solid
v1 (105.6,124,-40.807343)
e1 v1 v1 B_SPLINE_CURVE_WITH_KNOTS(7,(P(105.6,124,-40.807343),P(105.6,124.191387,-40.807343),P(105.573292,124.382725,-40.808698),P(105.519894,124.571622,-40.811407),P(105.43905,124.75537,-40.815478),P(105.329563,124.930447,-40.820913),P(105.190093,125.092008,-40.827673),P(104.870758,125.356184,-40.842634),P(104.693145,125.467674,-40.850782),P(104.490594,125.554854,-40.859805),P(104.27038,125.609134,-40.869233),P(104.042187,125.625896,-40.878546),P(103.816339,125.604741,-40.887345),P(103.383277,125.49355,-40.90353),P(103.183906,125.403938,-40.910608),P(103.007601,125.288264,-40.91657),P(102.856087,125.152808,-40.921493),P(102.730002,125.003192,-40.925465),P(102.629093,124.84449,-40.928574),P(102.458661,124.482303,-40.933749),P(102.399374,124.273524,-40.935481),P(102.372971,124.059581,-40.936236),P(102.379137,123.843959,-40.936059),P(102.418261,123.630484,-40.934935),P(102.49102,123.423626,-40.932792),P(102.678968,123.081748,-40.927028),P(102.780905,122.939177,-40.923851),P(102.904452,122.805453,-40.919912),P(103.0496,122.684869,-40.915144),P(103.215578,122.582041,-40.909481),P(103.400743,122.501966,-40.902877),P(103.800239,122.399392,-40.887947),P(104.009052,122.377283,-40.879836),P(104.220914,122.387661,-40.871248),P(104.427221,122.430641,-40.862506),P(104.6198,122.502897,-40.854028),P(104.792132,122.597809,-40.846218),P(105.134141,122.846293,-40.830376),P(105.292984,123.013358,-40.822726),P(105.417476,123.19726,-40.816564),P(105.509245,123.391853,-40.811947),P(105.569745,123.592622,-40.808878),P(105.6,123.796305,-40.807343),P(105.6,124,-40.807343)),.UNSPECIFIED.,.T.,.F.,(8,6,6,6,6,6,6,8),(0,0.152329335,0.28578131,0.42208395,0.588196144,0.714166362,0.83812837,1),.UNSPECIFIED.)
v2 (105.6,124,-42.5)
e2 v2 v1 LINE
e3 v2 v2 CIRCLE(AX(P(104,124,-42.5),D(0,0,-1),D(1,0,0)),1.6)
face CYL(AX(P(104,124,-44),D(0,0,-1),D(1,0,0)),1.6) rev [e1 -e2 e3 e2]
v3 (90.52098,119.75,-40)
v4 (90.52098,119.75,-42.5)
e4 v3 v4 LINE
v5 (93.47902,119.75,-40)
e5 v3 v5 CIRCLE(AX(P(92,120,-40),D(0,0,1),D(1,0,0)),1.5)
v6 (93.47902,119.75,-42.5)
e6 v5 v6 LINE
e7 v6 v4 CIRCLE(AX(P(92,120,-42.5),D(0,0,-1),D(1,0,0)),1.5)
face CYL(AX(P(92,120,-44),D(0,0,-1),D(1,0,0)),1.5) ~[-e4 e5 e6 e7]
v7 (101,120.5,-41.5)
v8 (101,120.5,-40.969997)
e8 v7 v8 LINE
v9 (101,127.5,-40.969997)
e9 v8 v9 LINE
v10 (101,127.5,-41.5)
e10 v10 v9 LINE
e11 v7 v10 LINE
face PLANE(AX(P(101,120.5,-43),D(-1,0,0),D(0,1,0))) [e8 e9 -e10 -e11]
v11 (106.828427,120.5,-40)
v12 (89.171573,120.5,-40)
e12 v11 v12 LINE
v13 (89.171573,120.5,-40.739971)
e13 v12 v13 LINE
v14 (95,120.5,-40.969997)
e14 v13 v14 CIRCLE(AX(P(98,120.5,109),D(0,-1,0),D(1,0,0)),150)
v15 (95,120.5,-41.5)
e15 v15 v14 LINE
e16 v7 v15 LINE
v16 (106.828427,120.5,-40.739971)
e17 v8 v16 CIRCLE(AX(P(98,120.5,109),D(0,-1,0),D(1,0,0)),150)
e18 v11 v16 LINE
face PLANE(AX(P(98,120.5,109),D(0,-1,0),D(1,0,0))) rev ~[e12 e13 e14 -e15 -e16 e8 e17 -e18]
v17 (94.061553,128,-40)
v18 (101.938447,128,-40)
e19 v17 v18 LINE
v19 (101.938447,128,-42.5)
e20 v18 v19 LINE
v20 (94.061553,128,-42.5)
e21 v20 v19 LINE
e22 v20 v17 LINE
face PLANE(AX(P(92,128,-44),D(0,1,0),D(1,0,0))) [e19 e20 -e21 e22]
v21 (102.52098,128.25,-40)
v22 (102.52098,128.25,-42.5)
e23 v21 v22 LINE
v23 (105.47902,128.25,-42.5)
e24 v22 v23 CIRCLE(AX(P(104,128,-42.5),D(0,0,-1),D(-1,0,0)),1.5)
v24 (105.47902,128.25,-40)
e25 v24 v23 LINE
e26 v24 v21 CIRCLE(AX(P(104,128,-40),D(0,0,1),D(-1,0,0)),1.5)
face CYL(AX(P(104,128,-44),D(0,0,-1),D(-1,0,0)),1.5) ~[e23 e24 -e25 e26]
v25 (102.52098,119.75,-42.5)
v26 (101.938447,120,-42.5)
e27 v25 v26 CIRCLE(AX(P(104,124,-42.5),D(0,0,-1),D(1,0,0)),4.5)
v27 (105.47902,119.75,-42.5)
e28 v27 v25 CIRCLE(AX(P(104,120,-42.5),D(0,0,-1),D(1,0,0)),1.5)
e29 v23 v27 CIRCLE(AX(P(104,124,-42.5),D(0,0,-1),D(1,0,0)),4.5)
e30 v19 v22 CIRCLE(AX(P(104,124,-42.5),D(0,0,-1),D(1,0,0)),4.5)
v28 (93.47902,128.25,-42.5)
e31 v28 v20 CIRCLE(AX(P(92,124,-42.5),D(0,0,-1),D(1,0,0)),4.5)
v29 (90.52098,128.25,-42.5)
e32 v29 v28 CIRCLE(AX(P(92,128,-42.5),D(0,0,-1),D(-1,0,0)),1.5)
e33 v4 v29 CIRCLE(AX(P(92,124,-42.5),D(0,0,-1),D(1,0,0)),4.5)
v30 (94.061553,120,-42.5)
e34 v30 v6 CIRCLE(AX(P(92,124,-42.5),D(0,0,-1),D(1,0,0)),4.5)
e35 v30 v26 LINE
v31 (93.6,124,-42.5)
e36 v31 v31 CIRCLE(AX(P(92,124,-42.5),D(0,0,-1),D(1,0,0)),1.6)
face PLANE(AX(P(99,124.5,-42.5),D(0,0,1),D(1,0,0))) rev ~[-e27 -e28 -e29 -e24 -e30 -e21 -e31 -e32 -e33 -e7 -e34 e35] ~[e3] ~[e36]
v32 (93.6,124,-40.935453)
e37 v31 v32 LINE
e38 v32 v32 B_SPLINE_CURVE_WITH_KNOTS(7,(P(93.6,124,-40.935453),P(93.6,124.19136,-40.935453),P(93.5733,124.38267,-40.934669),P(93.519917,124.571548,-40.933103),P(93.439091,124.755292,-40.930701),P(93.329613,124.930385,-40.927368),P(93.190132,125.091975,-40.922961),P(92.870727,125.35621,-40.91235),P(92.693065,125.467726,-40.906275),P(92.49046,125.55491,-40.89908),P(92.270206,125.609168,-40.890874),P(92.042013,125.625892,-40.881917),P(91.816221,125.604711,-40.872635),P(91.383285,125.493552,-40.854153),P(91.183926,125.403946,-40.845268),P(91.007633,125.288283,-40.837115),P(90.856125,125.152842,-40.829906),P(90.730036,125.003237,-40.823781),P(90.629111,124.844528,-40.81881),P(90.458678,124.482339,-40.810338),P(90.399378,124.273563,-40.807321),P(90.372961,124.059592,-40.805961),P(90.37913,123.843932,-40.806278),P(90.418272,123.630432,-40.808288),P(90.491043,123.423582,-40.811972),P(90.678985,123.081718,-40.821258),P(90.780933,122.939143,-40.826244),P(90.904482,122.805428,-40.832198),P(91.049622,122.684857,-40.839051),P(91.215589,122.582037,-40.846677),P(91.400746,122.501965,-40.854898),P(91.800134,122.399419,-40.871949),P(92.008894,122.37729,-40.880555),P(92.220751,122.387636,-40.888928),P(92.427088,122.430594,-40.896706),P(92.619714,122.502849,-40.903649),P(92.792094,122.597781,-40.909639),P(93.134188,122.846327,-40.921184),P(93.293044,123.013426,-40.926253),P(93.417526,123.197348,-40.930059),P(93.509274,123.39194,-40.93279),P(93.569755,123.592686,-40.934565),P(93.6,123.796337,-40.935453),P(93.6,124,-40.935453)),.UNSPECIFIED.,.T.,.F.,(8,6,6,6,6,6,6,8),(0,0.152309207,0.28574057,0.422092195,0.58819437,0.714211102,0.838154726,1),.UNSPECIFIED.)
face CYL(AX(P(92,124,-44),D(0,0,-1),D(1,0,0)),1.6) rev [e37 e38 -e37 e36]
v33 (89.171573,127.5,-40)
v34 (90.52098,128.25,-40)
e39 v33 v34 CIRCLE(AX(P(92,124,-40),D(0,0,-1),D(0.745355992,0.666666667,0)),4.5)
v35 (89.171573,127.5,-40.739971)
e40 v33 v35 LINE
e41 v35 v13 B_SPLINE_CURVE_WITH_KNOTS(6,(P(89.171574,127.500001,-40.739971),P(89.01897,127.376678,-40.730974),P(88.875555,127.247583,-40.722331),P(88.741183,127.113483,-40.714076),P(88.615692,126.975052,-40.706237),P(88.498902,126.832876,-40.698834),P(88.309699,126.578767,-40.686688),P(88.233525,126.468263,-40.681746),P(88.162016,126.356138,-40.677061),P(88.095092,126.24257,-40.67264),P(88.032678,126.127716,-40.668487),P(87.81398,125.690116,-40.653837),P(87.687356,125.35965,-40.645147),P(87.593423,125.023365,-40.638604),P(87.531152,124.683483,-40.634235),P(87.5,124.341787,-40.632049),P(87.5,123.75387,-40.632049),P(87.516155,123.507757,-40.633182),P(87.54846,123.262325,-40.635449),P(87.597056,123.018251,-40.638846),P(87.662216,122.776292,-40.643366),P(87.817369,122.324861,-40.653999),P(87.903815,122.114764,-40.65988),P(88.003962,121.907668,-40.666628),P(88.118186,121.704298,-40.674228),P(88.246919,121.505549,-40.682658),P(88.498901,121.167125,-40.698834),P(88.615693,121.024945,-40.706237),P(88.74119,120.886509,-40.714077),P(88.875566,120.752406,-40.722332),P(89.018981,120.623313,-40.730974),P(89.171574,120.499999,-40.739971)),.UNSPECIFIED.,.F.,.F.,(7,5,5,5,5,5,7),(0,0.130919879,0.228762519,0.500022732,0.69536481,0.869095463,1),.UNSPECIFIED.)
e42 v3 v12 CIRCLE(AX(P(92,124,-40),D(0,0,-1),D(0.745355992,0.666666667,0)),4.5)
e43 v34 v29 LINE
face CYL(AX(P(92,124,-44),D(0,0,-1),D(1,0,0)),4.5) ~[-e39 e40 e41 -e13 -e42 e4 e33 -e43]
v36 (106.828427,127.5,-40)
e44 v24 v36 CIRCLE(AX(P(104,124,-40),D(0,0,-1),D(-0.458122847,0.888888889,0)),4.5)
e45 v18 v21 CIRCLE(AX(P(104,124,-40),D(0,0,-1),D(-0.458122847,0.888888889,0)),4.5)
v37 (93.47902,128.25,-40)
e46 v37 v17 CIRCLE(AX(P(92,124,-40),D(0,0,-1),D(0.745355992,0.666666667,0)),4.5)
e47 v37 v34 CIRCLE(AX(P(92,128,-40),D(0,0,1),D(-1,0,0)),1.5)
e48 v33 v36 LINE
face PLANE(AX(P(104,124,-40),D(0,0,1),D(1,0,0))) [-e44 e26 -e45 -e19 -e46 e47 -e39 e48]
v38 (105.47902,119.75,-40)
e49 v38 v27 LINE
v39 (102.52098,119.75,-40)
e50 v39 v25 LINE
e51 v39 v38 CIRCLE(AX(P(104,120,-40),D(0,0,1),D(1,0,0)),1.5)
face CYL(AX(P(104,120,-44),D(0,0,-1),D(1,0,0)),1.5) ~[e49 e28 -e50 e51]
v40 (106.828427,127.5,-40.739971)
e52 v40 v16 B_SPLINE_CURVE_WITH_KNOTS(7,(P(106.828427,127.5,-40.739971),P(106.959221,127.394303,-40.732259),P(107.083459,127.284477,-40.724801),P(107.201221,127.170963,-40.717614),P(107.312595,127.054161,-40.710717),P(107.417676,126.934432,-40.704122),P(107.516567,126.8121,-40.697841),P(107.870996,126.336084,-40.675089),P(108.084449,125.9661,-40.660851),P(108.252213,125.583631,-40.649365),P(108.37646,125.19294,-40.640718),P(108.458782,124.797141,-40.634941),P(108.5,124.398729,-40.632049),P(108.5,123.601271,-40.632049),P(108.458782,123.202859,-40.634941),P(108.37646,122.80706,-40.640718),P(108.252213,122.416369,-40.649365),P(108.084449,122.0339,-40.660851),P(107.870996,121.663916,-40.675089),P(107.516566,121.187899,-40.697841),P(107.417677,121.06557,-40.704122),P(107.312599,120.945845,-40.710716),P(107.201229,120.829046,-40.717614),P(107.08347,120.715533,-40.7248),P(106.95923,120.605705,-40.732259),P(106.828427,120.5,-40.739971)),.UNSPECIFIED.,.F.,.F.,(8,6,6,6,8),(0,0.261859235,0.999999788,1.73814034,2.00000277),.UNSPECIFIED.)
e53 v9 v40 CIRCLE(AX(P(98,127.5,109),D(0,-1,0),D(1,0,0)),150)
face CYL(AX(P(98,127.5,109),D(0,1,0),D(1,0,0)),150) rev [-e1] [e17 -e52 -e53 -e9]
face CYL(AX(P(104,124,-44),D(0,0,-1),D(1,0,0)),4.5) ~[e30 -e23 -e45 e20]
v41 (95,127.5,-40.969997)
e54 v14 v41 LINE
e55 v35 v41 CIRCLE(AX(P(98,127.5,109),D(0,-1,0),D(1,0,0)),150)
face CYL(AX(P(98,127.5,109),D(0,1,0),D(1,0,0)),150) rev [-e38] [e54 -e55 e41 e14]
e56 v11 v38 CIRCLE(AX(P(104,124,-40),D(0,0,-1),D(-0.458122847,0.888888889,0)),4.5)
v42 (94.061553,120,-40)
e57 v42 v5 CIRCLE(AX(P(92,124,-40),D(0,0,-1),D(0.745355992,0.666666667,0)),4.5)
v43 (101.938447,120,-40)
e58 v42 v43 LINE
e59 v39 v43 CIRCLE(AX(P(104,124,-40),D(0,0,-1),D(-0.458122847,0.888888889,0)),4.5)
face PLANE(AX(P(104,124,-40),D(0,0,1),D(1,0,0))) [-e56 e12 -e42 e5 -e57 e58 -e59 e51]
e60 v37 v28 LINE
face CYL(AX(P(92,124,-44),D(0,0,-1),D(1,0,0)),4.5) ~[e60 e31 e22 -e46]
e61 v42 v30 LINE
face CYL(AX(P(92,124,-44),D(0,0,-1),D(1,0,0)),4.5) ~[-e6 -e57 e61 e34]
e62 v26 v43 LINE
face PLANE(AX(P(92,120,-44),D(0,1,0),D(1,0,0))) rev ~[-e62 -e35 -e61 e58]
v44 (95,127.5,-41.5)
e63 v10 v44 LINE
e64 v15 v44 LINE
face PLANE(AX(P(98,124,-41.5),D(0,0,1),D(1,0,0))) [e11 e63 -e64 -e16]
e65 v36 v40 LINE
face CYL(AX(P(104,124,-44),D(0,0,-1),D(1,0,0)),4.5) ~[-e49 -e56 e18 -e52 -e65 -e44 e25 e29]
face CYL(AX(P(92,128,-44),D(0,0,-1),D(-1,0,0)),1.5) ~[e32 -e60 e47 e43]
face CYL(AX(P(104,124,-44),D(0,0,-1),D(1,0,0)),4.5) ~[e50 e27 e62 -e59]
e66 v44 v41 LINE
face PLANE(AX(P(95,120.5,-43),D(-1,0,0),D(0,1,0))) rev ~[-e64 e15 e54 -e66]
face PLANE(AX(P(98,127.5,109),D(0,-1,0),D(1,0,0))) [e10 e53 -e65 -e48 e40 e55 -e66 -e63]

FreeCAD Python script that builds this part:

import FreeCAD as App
import Part
import Sketcher
from FreeCAD import Vector


def add_polygon(sketch, points):
    """Adds a closed chain of lines whose ends are joined by coincident constraints."""
    first, n = sketch.GeometryCount, len(points)
    for a, b in zip(points, points[1:] + points[:1]):
        sketch.addGeometry(Part.LineSegment(App.Vector(*a, 0), App.Vector(*b, 0)), False)
    for i in range(n):
        sketch.addConstraint(Sketcher.Constraint("Coincident", first + i, 2, first + (i + 1) % n, 1))

doc = App.newDocument("Part")
body = doc.addObject("PartDesign::Body", "Body")

# Sketch on XY plane
sketch1 = body.newObject("Sketcher::SketchObject", "Sketch")
sketch1.AttachmentSupport = (doc.getObject("XY_Plane"), [""])
sketch1.MapMode = "FlatFace"
add_polygon(sketch1, [(2, 4), (2, -4), (10, -4), (10, 4)])  # lines 0-3
sketch1.addConstraint(Sketcher.Constraint("Vertical", 0))
sketch1.addConstraint(Sketcher.Constraint("Horizontal", 1))
sketch1.addConstraint(Sketcher.Constraint("Vertical", 2))
sketch1.addConstraint(Sketcher.Constraint("Horizontal", 3))
sketch1.addConstraint(Sketcher.Constraint("Equal", 3, 0))
sketch1.addConstraint(Sketcher.Constraint("DistanceX", 1, 1, 1, 2, 8.0))
sketch1.addConstraint(Sketcher.Constraint("DistanceX", -1, 1, 0, 2, 2.0))
sketch1.addConstraint(Sketcher.Constraint("DistanceY", 0, 2, -1, 1, 4.0))
pad1 = body.newObject("PartDesign::Pad", "Pad")
pad1.Profile = sketch1
pad1.Length = 1
body2 = doc.addObject("PartDesign::Body", "Body001")

# Sketch on XY plane
sketch2 = body2.newObject("Sketcher::SketchObject", "Sketch001")
sketch2.AttachmentSupport = (doc.getObject("XY_Plane001"), [""])
sketch2.MapMode = "FlatFace"
add_polygon(sketch2, [(-6, 7), (-6, -6), (20, -6), (20, 7)])  # lines 0-3
sketch2.addConstraint(Sketcher.Constraint("Vertical", 0))
sketch2.addConstraint(Sketcher.Constraint("Horizontal", 1))
sketch2.addConstraint(Sketcher.Constraint("Vertical", 2))
sketch2.addConstraint(Sketcher.Constraint("Horizontal", 3))
sketch2.addConstraint(Sketcher.Constraint("DistanceX", 1, 1, 1, 2, 26.0))
sketch2.addConstraint(Sketcher.Constraint("DistanceY", 0, 2, 0, 1, 13.0))
sketch2.addConstraint(Sketcher.Constraint("DistanceX", 0, 2, -1, 1, 6.0))
sketch2.addConstraint(Sketcher.Constraint("DistanceY", 0, 2, -1, 1, 6.0))
pad2 = body2.newObject("PartDesign::Pad", "Pad001")
pad2.Profile = sketch2
pad2.Length = 1.5
body3 = doc.addObject("PartDesign::Body", "Body002")

# Sketch on XY plane
sketch3 = body3.newObject("Sketcher::SketchObject", "Sketch002")
sketch3.AttachmentSupport = (doc.getObject("XY_Plane002"), [""])
sketch3.MapMode = "FlatFace"
sketch3.AttachmentOffset = App.Placement(Vector(0, 0, 1), App.Rotation())
add_polygon(sketch3, [(3, 4), (3, -4), (9, -4), (9, 4)])  # lines 0-3
sketch3.addConstraint(Sketcher.Constraint("Vertical", 0))
sketch3.addConstraint(Sketcher.Constraint("Horizontal", 1))
sketch3.addConstraint(Sketcher.Constraint("Vertical", 2))
sketch3.addConstraint(Sketcher.Constraint("Horizontal", 3))
sketch3.addConstraint(Sketcher.Constraint("DistanceX", 1, 1, 1, 2, 6.0))
sketch3.addConstraint(Sketcher.Constraint("DistanceY", 0, 2, 0, 1, 7.0))
sketch3.addConstraint(Sketcher.Constraint("DistanceX", -1, 1, 0, 2, 3.0))
sketch3.addConstraint(Sketcher.Constraint("DistanceY", 0, 2, -1, 1, 3.5))
pad3 = body3.newObject("PartDesign::Pad", "Pad002")
pad3.Profile = sketch3
pad3.Length = 3
body4 = doc.addObject("PartDesign::Body", "Body003")

# Sketch on XY plane
sketch4 = body4.newObject("Sketcher::SketchObject", "Sketch003")
sketch4.AttachmentSupport = (doc.getObject("XY_Plane003"), [""])
sketch4.MapMode = "FlatFace"
sketch4.addGeometry(Part.Circle(Vector(0, 0, 0), Vector(0, 0, 1), 150), False)
sketch4.addConstraint(Sketcher.Constraint("Coincident", 0, 3, -1, 1))
sketch4.addConstraint(Sketcher.Constraint("Diameter", 0, 300.0))
pad4 = body4.newObject("PartDesign::Pad", "Pad003")
pad4.Profile = sketch4
pad4.Length = 7
body5 = doc.addObject("PartDesign::Body", "Body004")
doc.recompute()

body4.Placement = App.Placement(Vector(0, 0, 0), App.Rotation(Vector(1, 0, 0), 90))
boolean = body5.newObject("PartDesign::Boolean", "Boolean")
boolean.Type = "Fuse"
boolean.addObjects([body4])
body6 = doc.addObject("PartDesign::Body", "Body005")
doc.recompute()

body5.Placement = App.Placement(Vector(6, 3.5, 153), App.Rotation(Vector(0, 0, 1), 0))
boolean2 = body6.newObject("PartDesign::Boolean", "Boolean001")
boolean2.Type = "Fuse"
boolean2.addObjects([body5])
body7 = doc.addObject("PartDesign::Body", "Body006")

# Sketch on XY plane
sketch5 = body7.newObject("Sketcher::SketchObject", "Sketch004")
sketch5.AttachmentSupport = (doc.getObject("XY_Plane006"), [""])
sketch5.MapMode = "FlatFace"
sketch5.addGeometry(Part.Circle(Vector(0, 0, 0), Vector(0, 0, 1), 1.6), False)
sketch5.addConstraint(Sketcher.Constraint("Coincident", 0, 3, -1, 1))
sketch5.addConstraint(Sketcher.Constraint("Diameter", 0, 3.2))
pad5 = body7.newObject("PartDesign::Pad", "Pad004")
pad5.Profile = sketch5
pad5.Length = 10
body8 = doc.addObject("PartDesign::Body", "Body007")
body8.AllowCompound = True

# Sketch on XY plane
sketch6 = body8.newObject("Sketcher::SketchObject", "Sketch005")
sketch6.AttachmentSupport = (doc.getObject("XY_Plane007"), [""])
sketch6.MapMode = "FlatFace"
sketch6.addGeometry(Part.Circle(Vector(12, 0, 0), Vector(0, 0, 1), 1.6), False)
sketch6.addConstraint(Sketcher.Constraint("PointOnObject", 0, 3, -1))
sketch6.addConstraint(Sketcher.Constraint("Diameter", 0, 3.2))
sketch6.addConstraint(Sketcher.Constraint("DistanceX", -1, 1, 0, 3, 12.0))
pad6 = body8.newObject("PartDesign::Pad", "Pad005")
pad6.Profile = sketch6
pad6.Length = 10
doc.recompute()

boolean3 = body8.newObject("PartDesign::Boolean", "Boolean002")
boolean3.Type = "Fuse"
boolean3.addObjects([body7])
body9 = doc.addObject("PartDesign::Body", "Body008")

# Sketch on XY plane
sketch7 = body9.newObject("Sketcher::SketchObject", "Sketch006")
sketch7.AttachmentSupport = (doc.getObject("XY_Plane008"), [""])
sketch7.MapMode = "FlatFace"
add_polygon(sketch7, [(-5, 10), (-5, 0), (5, 0), (5, 10)])  # lines 0-3
sketch7.addConstraint(Sketcher.Constraint("Vertical", 0))
sketch7.addConstraint(Sketcher.Constraint("Horizontal", 1))
sketch7.addConstraint(Sketcher.Constraint("Vertical", 2))
sketch7.addConstraint(Sketcher.Constraint("Horizontal", 3))
sketch7.addConstraint(Sketcher.Constraint("Symmetric", 0, 2, 1, 2, -1, 1))
sketch7.addConstraint(Sketcher.Constraint("Equal", 3, 0))
sketch7.addConstraint(Sketcher.Constraint("DistanceX", 1, 1, 1, 2, 10.0))
pad7 = body9.newObject("PartDesign::Pad", "Pad006")
pad7.Profile = sketch7
pad7.Length = 10
body10 = doc.addObject("PartDesign::Body", "Body009")

# Sketch on XY plane
sketch8 = body10.newObject("Sketcher::SketchObject", "Sketch007")
sketch8.AttachmentSupport = (doc.getObject("XY_Plane009"), [""])
sketch8.MapMode = "FlatFace"
sketch8.addGeometry(Part.Circle(Vector(0, 0, 0), Vector(0, 0, 1), 1.5), False)
sketch8.addConstraint(Sketcher.Constraint("Coincident", 0, 3, -1, 1))
sketch8.addConstraint(Sketcher.Constraint("Diameter", 0, 3.0))
pad8 = body10.newObject("PartDesign::Pad", "Pad007")
pad8.Profile = sketch8
pad8.Length = 4
doc.recompute()

boolean4 = body10.newObject("PartDesign::Boolean", "Boolean003")
boolean4.Type = "Cut"
boolean4.addObjects([body9])
body11 = doc.addObject("PartDesign::Body", "Body010")
doc.recompute()

body10.Placement = App.Placement(Vector(12, 4, 0), App.Rotation(Vector(0, 0, 1), 180))
boolean5 = body11.newObject("PartDesign::Boolean", "Boolean004")
boolean5.Type = "Fuse"
boolean5.addObjects([body10])
body12 = doc.addObject("PartDesign::Body", "Body011")

# Sketch on XY plane
sketch9 = body12.newObject("Sketcher::SketchObject", "Sketch008")
sketch9.AttachmentSupport = (doc.getObject("XY_Plane011"), [""])
sketch9.MapMode = "FlatFace"
add_polygon(sketch9, [(-5, 10), (-5, 0), (5, 0), (5, 10)])  # lines 0-3
sketch9.addConstraint(Sketcher.Constraint("Vertical", 0))
sketch9.addConstraint(Sketcher.Constraint("Horizontal", 1))
sketch9.addConstraint(Sketcher.Constraint("Vertical", 2))
sketch9.addConstraint(Sketcher.Constraint("Horizontal", 3))
sketch9.addConstraint(Sketcher.Constraint("Symmetric", 0, 2, 1, 2, -1, 1))
sketch9.addConstraint(Sketcher.Constraint("Equal", 3, 0))
sketch9.addConstraint(Sketcher.Constraint("DistanceX", 1, 1, 1, 2, 10.0))
pad9 = body12.newObject("PartDesign::Pad", "Pad008")
pad9.Profile = sketch9
pad9.Length = 10
body13 = doc.addObject("PartDesign::Body", "Body012")

# Sketch on XY plane
sketch10 = body13.newObject("Sketcher::SketchObject", "Sketch009")
sketch10.AttachmentSupport = (doc.getObject("XY_Plane012"), [""])
sketch10.MapMode = "FlatFace"
sketch10.addGeometry(Part.Circle(Vector(0, 0, 0), Vector(0, 0, 1), 1.5), False)
sketch10.addConstraint(Sketcher.Constraint("Coincident", 0, 3, -1, 1))
sketch10.addConstraint(Sketcher.Constraint("Diameter", 0, 3.0))
pad10 = body13.newObject("PartDesign::Pad", "Pad009")
pad10.Profile = sketch10
pad10.Length = 4
doc.recompute()

boolean6 = body13.newObject("PartDesign::Boolean", "Boolean005")
boolean6.Type = "Cut"
boolean6.addObjects([body12])
body14 = doc.addObject("PartDesign::Body", "Body013")
doc.recompute()

body13.Placement = App.Placement(Vector(0, 4, 0), App.Rotation(Vector(0, 0, 1), 180))
boolean7 = body14.newObject("PartDesign::Boolean", "Boolean006")
boolean7.Type = "Fuse"
boolean7.addObjects([body13])
body15 = doc.addObject("PartDesign::Body", "Body014")

# Sketch on XY plane
sketch11 = body15.newObject("Sketcher::SketchObject", "Sketch010")
sketch11.AttachmentSupport = (doc.getObject("XY_Plane014"), [""])
sketch11.MapMode = "FlatFace"
add_polygon(sketch11, [(-5, 10), (-5, 0), (5, 0), (5, 10)])  # lines 0-3
sketch11.addConstraint(Sketcher.Constraint("Vertical", 0))
sketch11.addConstraint(Sketcher.Constraint("Horizontal", 1))
sketch11.addConstraint(Sketcher.Constraint("Vertical", 2))
sketch11.addConstraint(Sketcher.Constraint("Horizontal", 3))
sketch11.addConstraint(Sketcher.Constraint("Symmetric", 0, 2, 1, 2, -1, 1))
sketch11.addConstraint(Sketcher.Constraint("Equal", 3, 0))
sketch11.addConstraint(Sketcher.Constraint("DistanceX", 1, 1, 1, 2, 10.0))
pad11 = body15.newObject("PartDesign::Pad", "Pad010")
pad11.Profile = sketch11
pad11.Length = 10
body16 = doc.addObject("PartDesign::Body", "Body015")

# Sketch on XY plane
sketch12 = body16.newObject("Sketcher::SketchObject", "Sketch011")
sketch12.AttachmentSupport = (doc.getObject("XY_Plane015"), [""])
sketch12.MapMode = "FlatFace"
sketch12.addGeometry(Part.Circle(Vector(0, 0, 0), Vector(0, 0, 1), 1.5), False)
sketch12.addConstraint(Sketcher.Constraint("Coincident", 0, 3, -1, 1))
sketch12.addConstraint(Sketcher.Constraint("Diameter", 0, 3.0))
pad12 = body16.newObject("PartDesign::Pad", "Pad011")
pad12.Profile = sketch12
pad12.Length = 4
doc.recompute()

boolean8 = body16.newObject("PartDesign::Boolean", "Boolean007")
boolean8.Type = "Cut"
boolean8.addObjects([body15])
body17 = doc.addObject("PartDesign::Body", "Body016")
doc.recompute()

body16.Placement = App.Placement(Vector(12, -4, 0), App.Rotation(Vector(0, 0, 1), 0))
boolean9 = body17.newObject("PartDesign::Boolean", "Boolean008")
boolean9.Type = "Fuse"
boolean9.addObjects([body16])
body18 = doc.addObject("PartDesign::Body", "Body017")

# Sketch on XY plane
sketch13 = body18.newObject("Sketcher::SketchObject", "Sketch012")
sketch13.AttachmentSupport = (doc.getObject("XY_Plane017"), [""])
sketch13.MapMode = "FlatFace"
add_polygon(sketch13, [(-5, 10), (-5, 0), (5, 0), (5, 10)])  # lines 0-3
sketch13.addConstraint(Sketcher.Constraint("Vertical", 0))
sketch13.addConstraint(Sketcher.Constraint("Horizontal", 1))
sketch13.addConstraint(Sketcher.Constraint("Vertical", 2))
sketch13.addConstraint(Sketcher.Constraint("Horizontal", 3))
sketch13.addConstraint(Sketcher.Constraint("Symmetric", 0, 2, 1, 2, -1, 1))
sketch13.addConstraint(Sketcher.Constraint("Equal", 3, 0))
sketch13.addConstraint(Sketcher.Constraint("DistanceX", 1, 1, 1, 2, 10.0))
pad13 = body18.newObject("PartDesign::Pad", "Pad012")
pad13.Profile = sketch13
pad13.Length = 10
body19 = doc.addObject("PartDesign::Body", "Body018")

# Sketch on XY plane
sketch14 = body19.newObject("Sketcher::SketchObject", "Sketch013")
sketch14.AttachmentSupport = (doc.getObject("XY_Plane018"), [""])
sketch14.MapMode = "FlatFace"
sketch14.addGeometry(Part.Circle(Vector(0, 0, 0), Vector(0, 0, 1), 1.5), False)
sketch14.addConstraint(Sketcher.Constraint("Coincident", 0, 3, -1, 1))
sketch14.addConstraint(Sketcher.Constraint("Diameter", 0, 3.0))
pad14 = body19.newObject("PartDesign::Pad", "Pad013")
pad14.Profile = sketch14
pad14.Length = 4
doc.recompute()

boolean10 = body19.newObject("PartDesign::Boolean", "Boolean009")
boolean10.Type = "Cut"
boolean10.addObjects([body18])
body20 = doc.addObject("PartDesign::Body", "Body019")
doc.recompute()

body19.Placement = App.Placement(Vector(0, -4, 0), App.Rotation(Vector(0, 0, 1), 0))
boolean11 = body20.newObject("PartDesign::Boolean", "Boolean010")
boolean11.Type = "Fuse"
boolean11.addObjects([body19])
body21 = doc.addObject("PartDesign::Body", "Body020")

# Sketch on XY plane
sketch15 = body21.newObject("Sketcher::SketchObject", "Sketch014")
sketch15.AttachmentSupport = (doc.getObject("XY_Plane020"), [""])
sketch15.MapMode = "FlatFace"
sketch15.AttachmentOffset = App.Placement(Vector(0, 0, 3), App.Rotation())
add_polygon(sketch15, [(0, 4), (0, 3.5), (12, 3.5), (12, 4)])  # lines 0-3
sketch15.addConstraint(Sketcher.Constraint("Vertical", 0))
sketch15.addConstraint(Sketcher.Constraint("Horizontal", 1))
sketch15.addConstraint(Sketcher.Constraint("Vertical", 2))
sketch15.addConstraint(Sketcher.Constraint("Horizontal", 3))
sketch15.addConstraint(Sketcher.Constraint("PointOnObject", 0, 2, -2))
sketch15.addConstraint(Sketcher.Constraint("DistanceX", 1, 1, 1, 2, 12.0))
sketch15.addConstraint(Sketcher.Constraint("DistanceY", 0, 2, 0, 1, 0.5))
sketch15.addConstraint(Sketcher.Constraint("DistanceY", -1, 1, 2, 2, 4.0))
pad15 = body21.newObject("PartDesign::Pad", "Pad014")
pad15.Profile = sketch15
pad15.Length = 1
body22 = doc.addObject("PartDesign::Body", "Body021")

# Sketch on XY plane
sketch16 = body22.newObject("Sketcher::SketchObject", "Sketch015")
sketch16.AttachmentSupport = (doc.getObject("XY_Plane021"), [""])
sketch16.MapMode = "FlatFace"
sketch16.AttachmentOffset = App.Placement(Vector(0, 0, 3), App.Rotation())
add_polygon(sketch16, [(0, -3.5), (0, -4), (12, -4), (12, -3.5)])  # lines 0-3
sketch16.addConstraint(Sketcher.Constraint("Vertical", 0))
sketch16.addConstraint(Sketcher.Constraint("Horizontal", 1))
sketch16.addConstraint(Sketcher.Constraint("Vertical", 2))
sketch16.addConstraint(Sketcher.Constraint("Horizontal", 3))
sketch16.addConstraint(Sketcher.Constraint("PointOnObject", 0, 2, -2))
sketch16.addConstraint(Sketcher.Constraint("DistanceX", 1, 1, 1, 2, 12.0))
sketch16.addConstraint(Sketcher.Constraint("DistanceY", 0, 2, 0, 1, 0.5))
sketch16.addConstraint(Sketcher.Constraint("DistanceY", 0, 2, -1, 1, 4.0))
pad16 = body22.newObject("PartDesign::Pad", "Pad015")
pad16.Profile = sketch16
pad16.Length = 1
body23 = doc.addObject("PartDesign::Body", "Body022")

# Sketch on XY plane
sketch17 = body23.newObject("Sketcher::SketchObject", "Sketch016")
sketch17.AttachmentSupport = (doc.getObject("XY_Plane022"), [""])
sketch17.MapMode = "FlatFace"
add_polygon(sketch17, [(0, 4), (0, 3), (12, 3), (12, 4)])  # lines 0-3
sketch17.addConstraint(Sketcher.Constraint("Vertical", 0))
sketch17.addConstraint(Sketcher.Constraint("Horizontal", 1))
sketch17.addConstraint(Sketcher.Constraint("Vertical", 2))
sketch17.addConstraint(Sketcher.Constraint("Horizontal", 3))
sketch17.addConstraint(Sketcher.Constraint("PointOnObject", 0, 2, -2))
sketch17.addConstraint(Sketcher.Constraint("DistanceX", 1, 1, 1, 2, 12.0))
sketch17.addConstraint(Sketcher.Constraint("DistanceY", 0, 2, 0, 1, 1.0))
sketch17.addConstraint(Sketcher.Constraint("DistanceY", -1, 1, 0, 2, 3.0))
pad17 = body23.newObject("PartDesign::Pad", "Pad016")
pad17.Profile = sketch17
pad17.Length = 4
body24 = doc.addObject("PartDesign::Body", "Body023")

# Sketch on XY plane
sketch18 = body24.newObject("Sketcher::SketchObject", "Sketch017")
sketch18.AttachmentSupport = (doc.getObject("XY_Plane023"), [""])
sketch18.MapMode = "FlatFace"
add_polygon(sketch18, [(0, -3), (0, -4), (12, -4), (12, -3)])  # lines 0-3
sketch18.addConstraint(Sketcher.Constraint("Vertical", 0))
sketch18.addConstraint(Sketcher.Constraint("Horizontal", 1))
sketch18.addConstraint(Sketcher.Constraint("Vertical", 2))
sketch18.addConstraint(Sketcher.Constraint("Horizontal", 3))
sketch18.addConstraint(Sketcher.Constraint("PointOnObject", 0, 2, -2))
sketch18.addConstraint(Sketcher.Constraint("DistanceX", 1, 1, 1, 2, 12.0))
sketch18.addConstraint(Sketcher.Constraint("DistanceY", 0, 2, 0, 1, 1.0))
sketch18.addConstraint(Sketcher.Constraint("DistanceY", 0, 2, -1, 1, 4.0))
pad18 = body24.newObject("PartDesign::Pad", "Pad017")
pad18.Profile = sketch18
pad18.Length = 4
body25 = doc.addObject("PartDesign::Body", "Body024")

# Sketch on XY plane
sketch19 = body25.newObject("Sketcher::SketchObject", "Sketch018")
sketch19.AttachmentSupport = (doc.getObject("XY_Plane024"), [""])
sketch19.MapMode = "FlatFace"
sketch19.addGeometry(Part.Circle(Vector(12, 0, 0), Vector(0, 0, 1), 4.5), False)
sketch19.addConstraint(Sketcher.Constraint("PointOnObject", 0, 3, -1))
sketch19.addConstraint(Sketcher.Constraint("Diameter", 0, 9.0))
sketch19.addConstraint(Sketcher.Constraint("DistanceX", -1, 1, 0, 3, 12.0))
pad19 = body25.newObject("PartDesign::Pad", "Pad018")
pad19.Profile = sketch19
pad19.Length = 4
body26 = doc.addObject("PartDesign::Body", "Body025")

# Sketch on XY plane
sketch20 = body26.newObject("Sketcher::SketchObject", "Sketch019")
sketch20.AttachmentSupport = (doc.getObject("XY_Plane025"), [""])
sketch20.MapMode = "FlatFace"
sketch20.addGeometry(Part.Circle(Vector(0, 0, 0), Vector(0, 0, 1), 4.5), False)
sketch20.addConstraint(Sketcher.Constraint("Coincident", 0, 3, -1, 1))
sketch20.addConstraint(Sketcher.Constraint("Diameter", 0, 9.0))
pad20 = body26.newObject("PartDesign::Pad", "Pad019")
pad20.Profile = sketch20
pad20.Length = 4
body27 = doc.addObject("PartDesign::Body", "Body026")

# Sketch on XY plane
sketch21 = body27.newObject("Sketcher::SketchObject", "Sketch020")
sketch21.AttachmentSupport = (doc.getObject("XY_Plane026"), [""])
sketch21.MapMode = "FlatFace"
add_polygon(sketch21, [(0, 4), (0, -4), (12, -4), (12, 4)])  # lines 0-3
sketch21.addConstraint(Sketcher.Constraint("Vertical", 0))
sketch21.addConstraint(Sketcher.Constraint("Horizontal", 1))
sketch21.addConstraint(Sketcher.Constraint("Vertical", 2))
sketch21.addConstraint(Sketcher.Constraint("Horizontal", 3))
sketch21.addConstraint(Sketcher.Constraint("Symmetric", 0, 2, 3, 2, -1, 1))
sketch21.addConstraint(Sketcher.Constraint("DistanceX", 1, 1, 1, 2, 12.0))
sketch21.addConstraint(Sketcher.Constraint("DistanceY", 0, 2, 0, 1, 8.0))
pad21 = body27.newObject("PartDesign::Pad", "Pad020")
pad21.Profile = sketch21
pad21.Length = 1
doc.recompute()

boolean12 = body27.newObject("PartDesign::Boolean", "Boolean011")
boolean12.Type = "Fuse"
boolean12.addObjects([body25])
doc.recompute()

boolean13 = body27.newObject("PartDesign::Boolean", "Boolean012")
boolean13.Type = "Fuse"
boolean13.addObjects([body26])
doc.recompute()

boolean14 = body27.newObject("PartDesign::Boolean", "Boolean013")
boolean14.Type = "Fuse"
boolean14.addObjects([body23])
doc.recompute()

boolean15 = body27.newObject("PartDesign::Boolean", "Boolean014")
boolean15.Type = "Fuse"
boolean15.addObjects([body24])
doc.recompute()

boolean16 = body27.newObject("PartDesign::Boolean", "Boolean015")
boolean16.Type = "Fuse"
boolean16.addObjects([body21])
doc.recompute()

boolean17 = body27.newObject("PartDesign::Boolean", "Boolean016")
boolean17.Type = "Fuse"
boolean17.addObjects([body22])
doc.recompute()

boolean18 = body27.newObject("PartDesign::Boolean", "Boolean017")
boolean18.Type = "Fuse"
boolean18.addObjects([body11])
doc.recompute()

boolean19 = body27.newObject("PartDesign::Boolean", "Boolean018")
boolean19.Type = "Fuse"
boolean19.addObjects([body14])
doc.recompute()

boolean20 = body27.newObject("PartDesign::Boolean", "Boolean019")
boolean20.Type = "Fuse"
boolean20.addObjects([body17])
doc.recompute()

boolean21 = body27.newObject("PartDesign::Boolean", "Boolean020")
boolean21.Type = "Fuse"
boolean21.addObjects([body20])
doc.recompute()

boolean22 = body27.newObject("PartDesign::Boolean", "Boolean021")
boolean22.Type = "Cut"
boolean22.addObjects([body8])
doc.recompute()

boolean23 = body27.newObject("PartDesign::Boolean", "Boolean022")
boolean23.Type = "Cut"
boolean23.addObjects([body6])
doc.recompute()

boolean24 = body27.newObject("PartDesign::Boolean", "Boolean023")
boolean24.Type = "Cut"
boolean24.addObjects([body3])
doc.recompute()

boolean25 = body27.newObject("PartDesign::Boolean", "Boolean024")
boolean25.Type = "Cut"
boolean25.addObjects([body2])
body28 = doc.addObject("PartDesign::Body", "Body027")
doc.recompute()

body27.Placement = App.Placement(Vector(0, 0, -1.5), App.Rotation(Vector(0, 0, 1), 0))
boolean26 = body28.newObject("PartDesign::Boolean", "Boolean025")
boolean26.Type = "Fuse"
boolean26.addObjects([body27])
doc.recompute()

boolean27 = body28.newObject("PartDesign::Boolean", "Boolean026")
boolean27.Type = "Fuse"
boolean27.addObjects([body])
body29 = doc.addObject("PartDesign::Body", "Body028")
doc.recompute()

body28.Placement = App.Placement(Vector(92, 124, -42.5), App.Rotation(Vector(0, 0, 1), 0))
boolean28 = body29.newObject("PartDesign::Boolean", "Boolean027")
boolean28.Type = "Fuse"
boolean28.addObjects([body28])

doc.recompute()
